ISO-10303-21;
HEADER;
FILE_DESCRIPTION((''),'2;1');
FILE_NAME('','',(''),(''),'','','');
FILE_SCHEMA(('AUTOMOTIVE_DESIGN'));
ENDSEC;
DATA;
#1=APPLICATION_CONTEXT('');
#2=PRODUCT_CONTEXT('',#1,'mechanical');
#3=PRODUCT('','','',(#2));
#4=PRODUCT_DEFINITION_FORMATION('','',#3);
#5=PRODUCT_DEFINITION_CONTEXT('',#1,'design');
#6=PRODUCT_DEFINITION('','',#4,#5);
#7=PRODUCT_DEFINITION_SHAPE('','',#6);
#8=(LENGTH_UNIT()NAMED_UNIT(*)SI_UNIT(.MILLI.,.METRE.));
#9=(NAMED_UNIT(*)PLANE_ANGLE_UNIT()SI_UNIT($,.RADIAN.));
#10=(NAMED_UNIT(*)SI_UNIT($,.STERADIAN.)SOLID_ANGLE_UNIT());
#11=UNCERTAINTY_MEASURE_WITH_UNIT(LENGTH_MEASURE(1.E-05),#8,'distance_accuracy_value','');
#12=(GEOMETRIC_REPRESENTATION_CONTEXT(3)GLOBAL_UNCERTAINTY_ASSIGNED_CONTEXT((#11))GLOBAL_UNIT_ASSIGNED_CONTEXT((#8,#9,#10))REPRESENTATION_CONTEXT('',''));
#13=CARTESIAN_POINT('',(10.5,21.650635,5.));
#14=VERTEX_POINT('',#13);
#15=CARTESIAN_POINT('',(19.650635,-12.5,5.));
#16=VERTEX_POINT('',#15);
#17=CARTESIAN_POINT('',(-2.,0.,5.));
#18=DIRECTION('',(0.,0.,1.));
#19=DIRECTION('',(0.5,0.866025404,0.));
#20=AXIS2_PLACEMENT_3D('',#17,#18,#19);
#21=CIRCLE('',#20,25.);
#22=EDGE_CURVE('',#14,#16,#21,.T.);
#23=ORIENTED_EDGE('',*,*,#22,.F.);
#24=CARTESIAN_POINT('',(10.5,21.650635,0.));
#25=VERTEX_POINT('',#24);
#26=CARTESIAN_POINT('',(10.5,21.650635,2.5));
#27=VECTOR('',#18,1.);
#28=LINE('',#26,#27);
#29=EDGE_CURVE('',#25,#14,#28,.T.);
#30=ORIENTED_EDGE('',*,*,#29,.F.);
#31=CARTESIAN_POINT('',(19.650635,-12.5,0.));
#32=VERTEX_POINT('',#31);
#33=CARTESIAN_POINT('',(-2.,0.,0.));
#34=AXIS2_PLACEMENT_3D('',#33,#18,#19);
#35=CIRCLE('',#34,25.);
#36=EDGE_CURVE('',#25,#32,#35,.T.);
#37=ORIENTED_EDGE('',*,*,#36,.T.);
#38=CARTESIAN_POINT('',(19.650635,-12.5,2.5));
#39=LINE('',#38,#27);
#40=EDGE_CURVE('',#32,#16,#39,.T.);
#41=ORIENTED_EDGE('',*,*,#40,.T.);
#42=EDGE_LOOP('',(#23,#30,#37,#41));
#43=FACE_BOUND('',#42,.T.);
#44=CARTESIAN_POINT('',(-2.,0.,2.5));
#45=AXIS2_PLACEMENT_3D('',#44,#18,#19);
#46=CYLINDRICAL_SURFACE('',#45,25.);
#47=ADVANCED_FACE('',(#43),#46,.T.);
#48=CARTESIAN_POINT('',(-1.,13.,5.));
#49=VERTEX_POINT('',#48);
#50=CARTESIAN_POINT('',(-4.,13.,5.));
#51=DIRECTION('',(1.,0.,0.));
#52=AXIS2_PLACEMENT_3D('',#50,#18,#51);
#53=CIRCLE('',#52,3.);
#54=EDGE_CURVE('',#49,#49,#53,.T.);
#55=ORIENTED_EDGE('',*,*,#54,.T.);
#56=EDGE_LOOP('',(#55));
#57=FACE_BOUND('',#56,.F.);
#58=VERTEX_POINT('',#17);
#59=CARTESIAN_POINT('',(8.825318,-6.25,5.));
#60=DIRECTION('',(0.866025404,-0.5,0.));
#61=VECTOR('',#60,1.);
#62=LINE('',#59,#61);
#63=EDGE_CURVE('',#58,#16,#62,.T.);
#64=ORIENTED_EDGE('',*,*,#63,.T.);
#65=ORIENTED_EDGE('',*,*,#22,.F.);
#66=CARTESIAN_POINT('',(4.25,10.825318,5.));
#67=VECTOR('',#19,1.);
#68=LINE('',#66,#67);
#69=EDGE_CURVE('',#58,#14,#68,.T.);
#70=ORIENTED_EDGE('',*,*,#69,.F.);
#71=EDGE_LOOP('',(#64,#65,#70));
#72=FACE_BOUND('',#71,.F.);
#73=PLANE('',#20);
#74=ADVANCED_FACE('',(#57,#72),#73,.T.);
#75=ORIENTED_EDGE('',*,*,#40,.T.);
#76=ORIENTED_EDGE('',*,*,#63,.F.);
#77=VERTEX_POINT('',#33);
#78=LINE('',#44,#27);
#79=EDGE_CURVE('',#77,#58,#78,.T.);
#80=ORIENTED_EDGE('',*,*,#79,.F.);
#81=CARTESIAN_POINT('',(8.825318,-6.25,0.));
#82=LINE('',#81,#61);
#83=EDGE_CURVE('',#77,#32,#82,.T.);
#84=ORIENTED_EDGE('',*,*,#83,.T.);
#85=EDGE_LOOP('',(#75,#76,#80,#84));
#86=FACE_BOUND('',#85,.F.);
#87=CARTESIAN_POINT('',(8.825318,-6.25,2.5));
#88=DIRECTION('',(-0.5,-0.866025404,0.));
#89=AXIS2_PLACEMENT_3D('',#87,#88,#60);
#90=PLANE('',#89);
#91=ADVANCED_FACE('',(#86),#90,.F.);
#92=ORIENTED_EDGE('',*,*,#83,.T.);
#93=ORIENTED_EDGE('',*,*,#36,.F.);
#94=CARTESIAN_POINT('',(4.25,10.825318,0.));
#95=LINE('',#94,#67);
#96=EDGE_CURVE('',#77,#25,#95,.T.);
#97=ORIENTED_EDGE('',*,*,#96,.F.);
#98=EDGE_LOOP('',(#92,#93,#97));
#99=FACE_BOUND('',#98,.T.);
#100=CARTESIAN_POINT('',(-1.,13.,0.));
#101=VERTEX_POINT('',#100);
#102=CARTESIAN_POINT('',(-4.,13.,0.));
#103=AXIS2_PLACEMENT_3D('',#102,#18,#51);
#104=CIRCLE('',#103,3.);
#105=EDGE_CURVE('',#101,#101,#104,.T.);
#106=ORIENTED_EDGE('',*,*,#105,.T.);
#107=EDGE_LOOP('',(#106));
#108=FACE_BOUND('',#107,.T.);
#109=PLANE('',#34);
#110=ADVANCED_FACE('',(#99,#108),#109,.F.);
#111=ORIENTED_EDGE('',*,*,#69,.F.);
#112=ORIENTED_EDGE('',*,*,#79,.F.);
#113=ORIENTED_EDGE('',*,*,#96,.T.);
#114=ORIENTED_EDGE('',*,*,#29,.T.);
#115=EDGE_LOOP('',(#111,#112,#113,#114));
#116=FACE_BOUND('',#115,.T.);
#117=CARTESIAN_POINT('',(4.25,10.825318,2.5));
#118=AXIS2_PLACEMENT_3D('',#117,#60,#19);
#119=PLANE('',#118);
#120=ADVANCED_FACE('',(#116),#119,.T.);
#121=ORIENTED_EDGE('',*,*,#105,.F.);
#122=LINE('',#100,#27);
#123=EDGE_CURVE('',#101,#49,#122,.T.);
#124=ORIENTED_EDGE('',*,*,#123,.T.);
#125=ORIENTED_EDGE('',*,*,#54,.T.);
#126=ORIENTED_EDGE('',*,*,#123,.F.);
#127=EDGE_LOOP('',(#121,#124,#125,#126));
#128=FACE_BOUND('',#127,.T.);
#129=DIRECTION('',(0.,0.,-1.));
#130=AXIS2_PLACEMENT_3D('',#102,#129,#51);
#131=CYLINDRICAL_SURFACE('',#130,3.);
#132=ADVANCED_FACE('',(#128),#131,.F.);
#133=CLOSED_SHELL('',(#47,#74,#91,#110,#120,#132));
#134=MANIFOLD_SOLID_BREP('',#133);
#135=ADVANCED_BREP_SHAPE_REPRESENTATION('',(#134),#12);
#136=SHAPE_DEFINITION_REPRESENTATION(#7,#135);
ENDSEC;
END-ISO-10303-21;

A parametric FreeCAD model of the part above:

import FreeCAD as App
import Part
import Sketcher

V = App.Vector


def add_polygon(sketch, points):
    """Adds a closed chain of lines whose ends are joined by coincident constraints."""
    first, n = sketch.GeometryCount, len(points)
    for a, b in zip(points, points[1:] + points[:1]):
        sketch.addGeometry(Part.LineSegment(App.Vector(*a, 0), App.Vector(*b, 0)), False)
    for i in range(n):
        sketch.addConstraint(Sketcher.Constraint("Coincident", first + i, 2, first + (i + 1) % n, 1))

doc = App.newDocument("Part")
body = doc.addObject("PartDesign::Body", "Body")

# Sketch on XY plane
sketch1 = body.newObject("Sketcher::SketchObject", "Sketch")
sketch1.AttachmentSupport = (doc.getObject("XY_Plane"), [""])
sketch1.MapMode = "FlatFace"
sketch1.addGeometry(Part.Circle(V(-4, 13, 0), V(0, 0, 1), 3), False)
sketch1.addConstraint(Sketcher.Constraint("Diameter", 0, 6.0))
sketch1.addConstraint(Sketcher.Constraint("DistanceX", 0, 3, -1, 1, 4.0))
sketch1.addConstraint(Sketcher.Constraint("DistanceY", -1, 1, 0, 3, 13.0))
pad1 = body.newObject("PartDesign::Pad", "Pad")
pad1.Profile = sketch1
pad1.Length = 5
body2 = doc.addObject("PartDesign::Body", "Body001")

# Sketch on XZ plane
sketch2 = body2.newObject("Sketcher::SketchObject", "Sketch001")
sketch2.AttachmentSupport = (doc.getObject("XZ_Plane001"), [""])
sketch2.MapMode = "FlatFace"
add_polygon(sketch2, [(0, 5), (0, 0), (25, 0), (25, 5)])  # lines 0-3
sketch2.addConstraint(Sketcher.Constraint("Vertical", 0))
sketch2.addConstraint(Sketcher.Constraint("Horizontal", 1))
sketch2.addConstraint(Sketcher.Constraint("Vertical", 2))
sketch2.addConstraint(Sketcher.Constraint("Horizontal", 3))
sketch2.addConstraint(Sketcher.Constraint("Coincident", 0, 2, -1, 1))
sketch2.addConstraint(Sketcher.Constraint("DistanceX", 1, 1, 1, 2, 25.0))
sketch2.addConstraint(Sketcher.Constraint("DistanceY", 0, 2, 0, 1, 5.0))
revolution = body2.newObject("PartDesign::Revolution", "Revolution")
revolution.Profile = sketch2
revolution.ReferenceAxis = (sketch2, ["V_Axis"])
revolution.Angle = 270
body3 = doc.addObject("PartDesign::Body", "Body002")
doc.recompute()

body2.Placement = App.Placement(V(-2, 0, 0), App.Rotation(V(0, 0, 1), 60))
boolean = body3.newObject("PartDesign::Boolean", "Boolean")
boolean.Type = "Fuse"
boolean.addObjects([body2])
doc.recompute()

boolean2 = body3.newObject("PartDesign::Boolean", "Boolean001")
boolean2.Type = "Cut"
boolean2.addObjects([body])

doc.recompute()
